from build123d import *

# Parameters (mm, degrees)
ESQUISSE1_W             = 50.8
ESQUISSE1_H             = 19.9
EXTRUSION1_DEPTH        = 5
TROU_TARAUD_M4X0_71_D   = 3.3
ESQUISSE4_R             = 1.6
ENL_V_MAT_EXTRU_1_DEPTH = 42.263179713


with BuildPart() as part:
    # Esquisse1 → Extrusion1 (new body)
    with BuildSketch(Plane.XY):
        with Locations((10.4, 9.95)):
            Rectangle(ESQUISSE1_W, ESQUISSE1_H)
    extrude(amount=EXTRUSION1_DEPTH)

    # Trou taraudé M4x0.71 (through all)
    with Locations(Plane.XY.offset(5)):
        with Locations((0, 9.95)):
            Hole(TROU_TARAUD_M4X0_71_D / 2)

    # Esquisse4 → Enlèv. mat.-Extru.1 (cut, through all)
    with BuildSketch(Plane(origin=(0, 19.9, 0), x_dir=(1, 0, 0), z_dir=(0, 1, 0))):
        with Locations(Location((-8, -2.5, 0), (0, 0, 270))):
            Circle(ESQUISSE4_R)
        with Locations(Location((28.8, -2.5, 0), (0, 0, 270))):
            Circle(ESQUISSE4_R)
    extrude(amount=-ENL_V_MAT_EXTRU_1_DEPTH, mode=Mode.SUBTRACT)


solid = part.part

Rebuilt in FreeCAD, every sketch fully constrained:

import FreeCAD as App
import Part
import Sketcher
from FreeCAD import Vector
Q = App.Units.Quantity

doc = App.newDocument("Part")
body = doc.addObject("PartDesign::Body", "Body")

sketch1 = doc.addObject("Sketcher::SketchObject", "Sketch")
body.addObject(sketch1)
sketch1.AttachmentSupport = (doc.XY_Plane, [""])
sketch1.MapMode = "FlatFace"
sketch1.addGeometry([
    Part.LineSegment(Vector(-15, 20, 0), Vector(-15, 0, 0)),
    Part.LineSegment(Vector(-15, 0, 0), Vector(36, 0, 0)),
    Part.LineSegment(Vector(36, 0, 0), Vector(36, 20, 0)),
    Part.LineSegment(Vector(36, 20, 0), Vector(-15, 20, 0)),
], False)
sketch1.addConstraint([
    Sketcher.Constraint("Coincident", 0, 2, 1, 1),
    Sketcher.Constraint("Coincident", 1, 2, 2, 1),
    Sketcher.Constraint("Coincident", 2, 2, 3, 1),
    Sketcher.Constraint("Coincident", 3, 2, 0, 1),
    Sketcher.Constraint("Vertical", 0),
    Sketcher.Constraint("Horizontal", 1),
    Sketcher.Constraint("Vertical", 2),
    Sketcher.Constraint("Horizontal", 3),
    Sketcher.Constraint("PointOnObject", 0, 2, -1),
    Sketcher.Constraint("DistanceX", 1, 1, 1, 2, Q("50.8 mm")),
    Sketcher.Constraint("DistanceY", 0, 2, 0, 1, Q("19.9 mm")),
    Sketcher.Constraint("DistanceX", 0, 2, -1, 1, Q("15 mm")),
])
pad1 = doc.addObject("PartDesign::Pad", "Pad")
body.addObject(pad1)
pad1.Profile = sketch1
pad1.Length = 5

sketch2 = doc.addObject("Sketcher::SketchObject", "Sketch001")
body.addObject(sketch2)
sketch2.AttachmentSupport = (doc.XY_Plane, [""])
sketch2.MapMode = "FlatFace"
sketch2.AttachmentOffset = App.Placement(Vector(0, 0, 5), App.Rotation())
sketch2.addGeometry(Part.Circle(Vector(0, 9.9, 0), Vector(0, 0, 1), 1.6), False)
sketch2.addConstraint([
    Sketcher.Constraint("PointOnObject", 0, 3, -2),
    Sketcher.Constraint("Diameter", 0, Q("3.3 mm")),
    Sketcher.Constraint("DistanceY", -1, 1, 0, 3, Q("9.95 mm")),
])
doc.recompute()
hole = doc.addObject("PartDesign::Hole", "Hole")
body.addObject(hole)
hole.Profile = sketch2
hole.ThreadType = "None"
hole.Diameter = 3.3
hole.DepthType = "ThroughAll"

sketch3 = doc.addObject("Sketcher::SketchObject", "Sketch002")
body.addObject(sketch3)
sketch3.AttachmentSupport = (doc.XZ_Plane, [""])
sketch3.MapMode = "FlatFace"
sketch3.AttachmentOffset = App.Placement(Vector(0, 0, -19.9), App.Rotation())
sketch3.addGeometry([
    Part.Circle(Vector(-8, 2.5, 0), Vector(0, 0, 1), 1.6),
    Part.Circle(Vector(28.8, 2.5, 0), Vector(0, 0, 1), 1.6),
], False)
sketch3.addConstraint([
    Sketcher.Constraint("Equal", 0, 1),
    Sketcher.Constraint("Horizontal", 0, 3, 1, 3),
    Sketcher.Constraint("Diameter", 0, Q("3.2 mm")),
    Sketcher.Constraint("DistanceX", 0, 3, -1, 1, Q("8 mm")),
    Sketcher.Constraint("DistanceY", -1, 1, 0, 3, Q("2.5 mm")),
    Sketcher.Constraint("DistanceX", -1, 1, 1, 3, Q("28.8 mm")),
])
pocket1 = doc.addObject("PartDesign::Pocket", "Pocket")
body.addObject(pocket1)
pocket1.Profile = sketch3
pocket1.Type = "ThroughAll"
pocket1.Reversed = True

doc.recompute()
